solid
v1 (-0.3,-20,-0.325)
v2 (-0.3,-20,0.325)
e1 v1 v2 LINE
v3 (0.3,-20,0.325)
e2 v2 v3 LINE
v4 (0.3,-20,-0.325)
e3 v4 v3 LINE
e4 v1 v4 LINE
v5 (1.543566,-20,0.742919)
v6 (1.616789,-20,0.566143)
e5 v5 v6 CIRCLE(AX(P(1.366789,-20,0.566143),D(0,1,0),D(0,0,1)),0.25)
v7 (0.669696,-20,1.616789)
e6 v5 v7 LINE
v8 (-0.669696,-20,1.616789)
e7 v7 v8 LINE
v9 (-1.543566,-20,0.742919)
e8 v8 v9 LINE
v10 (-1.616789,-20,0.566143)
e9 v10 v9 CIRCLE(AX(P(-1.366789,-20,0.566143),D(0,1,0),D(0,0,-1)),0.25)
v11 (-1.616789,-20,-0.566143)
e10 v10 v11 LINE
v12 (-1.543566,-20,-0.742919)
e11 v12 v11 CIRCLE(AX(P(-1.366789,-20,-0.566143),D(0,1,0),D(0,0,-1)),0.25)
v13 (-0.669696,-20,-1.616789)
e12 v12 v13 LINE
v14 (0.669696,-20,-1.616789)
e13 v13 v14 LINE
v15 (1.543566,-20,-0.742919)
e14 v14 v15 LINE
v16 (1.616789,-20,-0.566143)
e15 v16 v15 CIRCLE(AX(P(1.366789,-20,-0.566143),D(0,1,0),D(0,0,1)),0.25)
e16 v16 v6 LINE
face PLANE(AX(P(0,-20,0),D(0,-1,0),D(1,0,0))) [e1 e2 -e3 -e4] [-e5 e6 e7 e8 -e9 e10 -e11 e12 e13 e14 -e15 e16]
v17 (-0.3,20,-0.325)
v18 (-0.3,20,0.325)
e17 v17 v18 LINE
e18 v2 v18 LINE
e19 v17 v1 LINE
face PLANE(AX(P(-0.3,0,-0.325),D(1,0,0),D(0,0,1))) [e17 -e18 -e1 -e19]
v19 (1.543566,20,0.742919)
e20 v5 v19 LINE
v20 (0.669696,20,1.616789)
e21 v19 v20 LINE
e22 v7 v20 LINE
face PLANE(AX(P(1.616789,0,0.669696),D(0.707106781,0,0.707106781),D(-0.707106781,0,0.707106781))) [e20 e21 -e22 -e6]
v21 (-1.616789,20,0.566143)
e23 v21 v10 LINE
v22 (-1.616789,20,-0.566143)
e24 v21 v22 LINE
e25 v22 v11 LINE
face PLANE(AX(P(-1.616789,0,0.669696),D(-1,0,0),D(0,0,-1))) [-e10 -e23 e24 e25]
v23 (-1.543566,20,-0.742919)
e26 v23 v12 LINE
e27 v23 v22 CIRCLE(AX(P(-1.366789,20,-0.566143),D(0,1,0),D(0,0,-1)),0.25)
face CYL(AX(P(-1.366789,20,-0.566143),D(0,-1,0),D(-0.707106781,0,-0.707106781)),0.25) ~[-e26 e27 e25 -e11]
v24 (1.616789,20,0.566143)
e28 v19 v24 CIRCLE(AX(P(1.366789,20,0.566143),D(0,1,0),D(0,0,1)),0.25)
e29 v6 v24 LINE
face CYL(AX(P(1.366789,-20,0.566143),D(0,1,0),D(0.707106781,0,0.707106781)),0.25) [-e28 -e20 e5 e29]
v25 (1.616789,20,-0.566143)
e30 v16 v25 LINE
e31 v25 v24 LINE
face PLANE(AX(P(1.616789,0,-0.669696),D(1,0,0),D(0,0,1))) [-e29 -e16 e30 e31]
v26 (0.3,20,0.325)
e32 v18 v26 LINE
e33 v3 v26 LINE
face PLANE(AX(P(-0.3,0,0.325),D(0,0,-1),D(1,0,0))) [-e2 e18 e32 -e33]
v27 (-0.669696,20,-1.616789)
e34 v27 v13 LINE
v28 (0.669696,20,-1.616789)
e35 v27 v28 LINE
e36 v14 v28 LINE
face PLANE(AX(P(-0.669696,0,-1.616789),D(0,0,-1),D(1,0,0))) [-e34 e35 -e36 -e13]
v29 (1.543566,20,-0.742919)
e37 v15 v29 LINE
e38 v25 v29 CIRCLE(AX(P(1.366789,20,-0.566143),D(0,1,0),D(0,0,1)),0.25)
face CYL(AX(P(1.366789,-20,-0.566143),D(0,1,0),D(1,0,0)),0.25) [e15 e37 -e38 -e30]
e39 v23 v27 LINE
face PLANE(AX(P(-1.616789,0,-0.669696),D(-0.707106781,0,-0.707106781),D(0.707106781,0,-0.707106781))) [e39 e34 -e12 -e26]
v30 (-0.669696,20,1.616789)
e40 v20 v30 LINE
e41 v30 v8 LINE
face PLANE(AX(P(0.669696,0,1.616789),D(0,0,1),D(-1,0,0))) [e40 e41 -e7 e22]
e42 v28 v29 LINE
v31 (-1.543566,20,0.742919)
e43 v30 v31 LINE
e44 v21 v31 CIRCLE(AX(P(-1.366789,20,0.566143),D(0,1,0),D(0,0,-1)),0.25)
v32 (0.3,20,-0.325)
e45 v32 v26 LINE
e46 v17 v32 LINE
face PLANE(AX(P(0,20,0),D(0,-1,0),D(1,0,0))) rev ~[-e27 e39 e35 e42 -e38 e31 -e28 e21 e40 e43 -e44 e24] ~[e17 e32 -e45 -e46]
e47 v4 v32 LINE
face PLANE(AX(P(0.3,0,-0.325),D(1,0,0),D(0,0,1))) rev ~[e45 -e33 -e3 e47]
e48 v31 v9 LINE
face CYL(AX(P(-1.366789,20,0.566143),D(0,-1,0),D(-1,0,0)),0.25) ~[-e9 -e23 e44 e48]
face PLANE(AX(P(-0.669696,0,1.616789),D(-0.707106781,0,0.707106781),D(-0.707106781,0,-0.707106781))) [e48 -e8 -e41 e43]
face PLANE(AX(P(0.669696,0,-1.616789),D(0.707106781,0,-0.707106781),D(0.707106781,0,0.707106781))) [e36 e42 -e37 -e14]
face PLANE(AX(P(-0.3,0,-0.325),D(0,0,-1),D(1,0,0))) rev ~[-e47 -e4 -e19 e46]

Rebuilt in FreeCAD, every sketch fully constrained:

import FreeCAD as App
import Part
import Sketcher

V = App.Vector


def edges_at(feature, points):
    """Names of the edges that pass closest to the given points."""
    edges = feature.Shape.Edges
    near = lambda p: min(range(len(edges)), key=lambda i: edges[i].distToShape(Part.Vertex(*p))[0])
    return sorted({f"Edge{near(p) + 1}" for p in points})

doc = App.newDocument("Part")
body = doc.addObject("PartDesign::Body", "Body")

sketch1 = body.newObject("Sketcher::SketchObject", "Sketch")
sketch1.AttachmentSupport = (doc.getObject("XZ_Plane"), [""])
sketch1.MapMode = "FlatFace"
sketch1.addGeometry([
    Part.LineSegment(V(0.669696, 1.616789, 0), V(-0.669696, 1.616789, 0)),
    Part.LineSegment(V(-0.669696, 1.616789, 0), V(-1.616789, 0.669696, 0)),
    Part.LineSegment(V(-1.616789, 0.669696, 0), V(-1.616789, -0.669696, 0)),
    Part.LineSegment(V(-1.616789, -0.669696, 0), V(-0.669696, -1.616789, 0)),
    Part.LineSegment(V(-0.669696, -1.616789, 0), V(0.669696, -1.616789, 0)),
    Part.LineSegment(V(0.669696, -1.616789, 0), V(1.616789, -0.669696, 0)),
    Part.LineSegment(V(1.616789, -0.669696, 0), V(1.616789, 0.669696, 0)),
    Part.LineSegment(V(1.616789, 0.669696, 0), V(0.669696, 1.616789, 0)),
    Part.LineSegment(V(0.3, -0.325, 0), V(-0.3, -0.325, 0)),
    Part.LineSegment(V(-0.3, -0.325, 0), V(-0.3, 0.325, 0)),
    Part.LineSegment(V(-0.3, 0.325, 0), V(0.3, 0.325, 0)),
    Part.LineSegment(V(0.3, 0.325, 0), V(0.3, -0.325, 0)),
], False)
sketch1.addConstraint([
    Sketcher.Constraint("Coincident", 0, 2, 1, 1),
    Sketcher.Constraint("Coincident", 1, 2, 2, 1),
    Sketcher.Constraint("Coincident", 2, 2, 3, 1),
    Sketcher.Constraint("Coincident", 3, 2, 4, 1),
    Sketcher.Constraint("Coincident", 4, 2, 5, 1),
    Sketcher.Constraint("Coincident", 5, 2, 6, 1),
    Sketcher.Constraint("Coincident", 6, 2, 7, 1),
    Sketcher.Constraint("Coincident", 7, 2, 0, 1),
    Sketcher.Constraint("Coincident", 8, 2, 9, 1),
    Sketcher.Constraint("Coincident", 9, 2, 10, 1),
    Sketcher.Constraint("Coincident", 10, 2, 11, 1),
    Sketcher.Constraint("Coincident", 11, 2, 8, 1),
    Sketcher.Constraint("Horizontal", 0),
    Sketcher.Constraint("Vertical", 2),
    Sketcher.Constraint("Horizontal", 4),
    Sketcher.Constraint("Vertical", 6),
    Sketcher.Constraint("Horizontal", 8),
    Sketcher.Constraint("Vertical", 9),
    Sketcher.Constraint("Horizontal", 10),
    Sketcher.Constraint("Vertical", 11),
    Sketcher.Constraint("Symmetric", 0, 2, 4, 2, -1, 1),
    Sketcher.Constraint("Symmetric", 1, 2, 5, 2, -1, 1),
    Sketcher.Constraint("Symmetric", 8, 2, 10, 2, -1, 1),
    Sketcher.Constraint("Perpendicular", 1, 3),
    Sketcher.Constraint("Perpendicular", 5, 7),
    Sketcher.Constraint("Horizontal", 2, 2, 5, 2),
    Sketcher.Constraint("Horizontal", 1, 2, 6, 2),
    Sketcher.Constraint("Vertical", 0, 2, 3, 2),
    Sketcher.Constraint("Equal", 4, 2),
    Sketcher.Constraint("DistanceX", 8, 2, 8, 1, 0.6),
    Sketcher.Constraint("DistanceY", 9, 1, 9, 2, 0.65),
    Sketcher.Constraint("DistanceX", 0, 2, 0, 1, 1.339392),
    Sketcher.Constraint("Distance", 1, 1.339392),
])
pad1 = body.newObject("PartDesign::Pad", "Pad")
pad1.Profile = sketch1
pad1.Length = 40
pad1.Midplane = True
doc.recompute()

fillet = body.newObject("PartDesign::Fillet", "Fillet")
fillet.Base = (pad1, edges_at(pad1, [
    (-1.617, 0, 0.67),
    (-1.617, 0, -0.67),
    (1.617, 0, 0.67),
    (1.617, 0, -0.67),
]))
fillet.Radius = 0.25

doc.recompute()
